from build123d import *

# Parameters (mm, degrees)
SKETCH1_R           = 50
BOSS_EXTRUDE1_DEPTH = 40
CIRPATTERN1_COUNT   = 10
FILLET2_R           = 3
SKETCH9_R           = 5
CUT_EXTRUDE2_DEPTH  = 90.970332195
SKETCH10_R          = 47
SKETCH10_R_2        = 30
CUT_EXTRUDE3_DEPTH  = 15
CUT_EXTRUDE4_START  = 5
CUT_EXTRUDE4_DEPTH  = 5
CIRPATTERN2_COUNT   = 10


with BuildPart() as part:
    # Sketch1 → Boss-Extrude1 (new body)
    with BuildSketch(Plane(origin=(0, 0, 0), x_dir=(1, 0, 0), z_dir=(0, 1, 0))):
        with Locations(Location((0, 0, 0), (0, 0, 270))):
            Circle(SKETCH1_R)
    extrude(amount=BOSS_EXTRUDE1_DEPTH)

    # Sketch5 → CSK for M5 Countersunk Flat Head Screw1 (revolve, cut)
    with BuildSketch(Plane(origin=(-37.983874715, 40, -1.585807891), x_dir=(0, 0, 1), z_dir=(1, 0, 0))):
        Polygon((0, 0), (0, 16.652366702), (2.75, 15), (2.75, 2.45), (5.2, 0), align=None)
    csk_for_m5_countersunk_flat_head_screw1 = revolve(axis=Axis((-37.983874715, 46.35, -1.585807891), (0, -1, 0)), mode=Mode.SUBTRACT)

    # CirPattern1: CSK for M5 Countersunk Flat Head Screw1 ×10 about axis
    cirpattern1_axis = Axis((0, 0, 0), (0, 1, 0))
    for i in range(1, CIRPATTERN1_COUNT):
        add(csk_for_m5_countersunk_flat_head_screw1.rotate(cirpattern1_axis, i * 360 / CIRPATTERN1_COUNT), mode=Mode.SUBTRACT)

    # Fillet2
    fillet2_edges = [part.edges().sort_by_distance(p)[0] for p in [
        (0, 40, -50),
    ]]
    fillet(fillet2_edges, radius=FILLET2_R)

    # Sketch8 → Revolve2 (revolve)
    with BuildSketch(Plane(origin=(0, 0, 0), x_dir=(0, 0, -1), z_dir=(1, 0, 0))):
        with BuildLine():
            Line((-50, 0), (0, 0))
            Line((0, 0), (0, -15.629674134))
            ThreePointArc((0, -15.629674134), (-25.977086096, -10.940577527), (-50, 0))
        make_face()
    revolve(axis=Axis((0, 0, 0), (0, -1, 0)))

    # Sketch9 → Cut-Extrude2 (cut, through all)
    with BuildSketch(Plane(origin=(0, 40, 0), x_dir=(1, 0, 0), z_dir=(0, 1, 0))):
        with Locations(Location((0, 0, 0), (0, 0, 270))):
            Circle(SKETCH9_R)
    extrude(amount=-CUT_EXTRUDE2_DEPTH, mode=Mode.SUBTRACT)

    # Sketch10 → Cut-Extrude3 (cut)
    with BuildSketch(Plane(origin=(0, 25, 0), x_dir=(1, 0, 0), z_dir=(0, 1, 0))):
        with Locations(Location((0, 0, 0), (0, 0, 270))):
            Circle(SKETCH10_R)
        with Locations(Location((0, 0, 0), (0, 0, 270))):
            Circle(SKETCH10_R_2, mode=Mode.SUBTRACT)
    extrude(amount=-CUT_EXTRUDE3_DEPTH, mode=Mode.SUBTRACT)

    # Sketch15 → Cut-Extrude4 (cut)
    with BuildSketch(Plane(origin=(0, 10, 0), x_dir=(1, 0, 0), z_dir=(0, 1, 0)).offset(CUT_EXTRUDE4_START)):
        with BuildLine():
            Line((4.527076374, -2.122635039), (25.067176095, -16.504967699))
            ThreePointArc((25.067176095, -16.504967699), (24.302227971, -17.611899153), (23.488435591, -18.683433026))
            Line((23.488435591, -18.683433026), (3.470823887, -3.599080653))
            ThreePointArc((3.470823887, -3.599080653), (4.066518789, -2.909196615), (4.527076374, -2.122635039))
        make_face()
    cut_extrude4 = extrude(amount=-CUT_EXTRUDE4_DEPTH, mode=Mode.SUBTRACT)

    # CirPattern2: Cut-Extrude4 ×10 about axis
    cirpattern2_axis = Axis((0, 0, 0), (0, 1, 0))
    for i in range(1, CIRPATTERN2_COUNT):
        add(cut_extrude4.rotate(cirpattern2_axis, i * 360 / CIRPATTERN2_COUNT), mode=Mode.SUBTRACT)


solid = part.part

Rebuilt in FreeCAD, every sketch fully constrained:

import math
import FreeCAD as App
import Part
import Sketcher
Q = App.Units.Quantity


def edges_at(feature, points):
    """Names of the edges that pass closest to the given points."""
    edges = feature.Shape.Edges
    near = lambda p: min(range(len(edges)), key=lambda i: edges[i].distToShape(Part.Vertex(*p))[0])
    return sorted({f"Edge{near(p) + 1}" for p in points})


def add_polygon(sketch, points):
    """Adds a closed chain of lines whose ends are joined by coincident constraints."""
    first, n = sketch.GeometryCount, len(points)
    for a, b in zip(points, points[1:] + points[:1]):
        sketch.addGeometry(Part.LineSegment(App.Vector(*a, 0), App.Vector(*b, 0)), False)
    for i in range(n):
        sketch.addConstraint(Sketcher.Constraint("Coincident", first + i, 2, first + (i + 1) % n, 1))

doc = App.newDocument("Part")
body = doc.addObject("PartDesign::Body", "Body")

# Sketch on XZ plane
sketch1 = body.newObject("Sketcher::SketchObject", "Sketch")
sketch1.AttachmentSupport = (doc.getObject("XZ_Plane"), [""])
sketch1.MapMode = "FlatFace"
sketch1.addGeometry(Part.Circle(App.Vector(0, 0, 0), App.Vector(0, 0, 1), 50), False)
sketch1.addConstraint(Sketcher.Constraint("Coincident", 0, 3, -1, 1))
sketch1.addConstraint(Sketcher.Constraint("Diameter", 0, 100.0))
pad1 = body.newObject("PartDesign::Pad", "Pad")
pad1.Profile = sketch1
pad1.Length = 40
pad1.Reversed = True

# Sketch on YZ plane
sketch2 = body.newObject("Sketcher::SketchObject", "Sketch001")
sketch2.AttachmentSupport = (doc.getObject("YZ_Plane"), [""])
sketch2.MapMode = "FlatFace"
sketch2.AttachmentOffset = App.Placement(App.Vector(0, 0, -37.983875), App.Rotation())
add_polygon(sketch2, [(23.347633, -1.585808), (40, -1.585808), (40, 3.614192), (37.55, 1.164192), (25, 1.164192)])  # lines 0-4
sketch2.addGeometry(Part.LineSegment(App.Vector(40, -1.585808, 0), App.Vector(23.347633, -1.585808, 0)), True)  # axis
sketch2.addConstraint(Sketcher.Constraint("Horizontal", 0))
sketch2.addConstraint(Sketcher.Constraint("Vertical", 1))
sketch2.addConstraint(Sketcher.Constraint("Horizontal", 3))
sketch2.addConstraint(Sketcher.Constraint("Horizontal", 5))
sketch2.addConstraint(Sketcher.Constraint("Coincident", 5, 1, 0, 2))
sketch2.addConstraint(Sketcher.Constraint("Equal", 0, 5))
sketch2.addConstraint(Sketcher.Constraint("Angle", 2, Q("-135 deg")))
sketch2.addConstraint(Sketcher.Constraint("Angle", 4, Q("-121 deg")))
sketch2.addConstraint(Sketcher.Constraint("DistanceY", 1, 1, 1, 2, 5.2))
sketch2.addConstraint(Sketcher.Constraint("DistanceX", -1, 1, 0, 2, 40.0))
sketch2.addConstraint(Sketcher.Constraint("DistanceX", -1, 1, 3, 2, 25.0))
sketch2.addConstraint(Sketcher.Constraint("DistanceX", 3, 2, 3, 1, 12.55))
sketch2.addConstraint(Sketcher.Constraint("DistanceY", 0, 2, -1, 1, 1.585808))
groove = body.newObject("PartDesign::Groove", "Groove")
groove.Profile = sketch2
groove.ReferenceAxis = (sketch2, ["Axis0"])
groove.Angle = 360
doc.recompute()

polarpattern = body.newObject("PartDesign::PolarPattern", "PolarPattern")
polarpattern.Originals = [groove]
polarpattern.Axis = (doc.getObject("Y_Axis"), [""])
polarpattern.Angle = 360
polarpattern.Occurrences = 10
body.Tip = polarpattern
doc.recompute()

fillet = body.newObject("PartDesign::Fillet", "Fillet")
fillet.Base = (polarpattern, edges_at(polarpattern, [(0, 40, -50)]))
fillet.Radius = 3

# Sketch on YZ plane
sketch3 = body.newObject("Sketcher::SketchObject", "Sketch002")
sketch3.AttachmentSupport = (doc.getObject("YZ_Plane"), [""])
sketch3.MapMode = "FlatFace"
sketch3.addGeometry(Part.LineSegment(App.Vector(0, 0, 0), App.Vector(0, 50, 0)), False)
sketch3.addGeometry(Part.ArcOfCircle(Part.Circle(App.Vector(90.598604, -5.7634, 0), App.Vector(0, 0, 1), 106.384509), math.radians(148.387721), math.radians(176.89447)), False)
sketch3.addGeometry(Part.LineSegment(App.Vector(-15.629674, 0, 0), App.Vector(0, 0, 0)), False)
sketch3.addConstraint(Sketcher.Constraint("Coincident", 0, 2, 1, 1))
sketch3.addConstraint(Sketcher.Constraint("Coincident", 1, 2, 2, 1))
sketch3.addConstraint(Sketcher.Constraint("Coincident", 2, 2, 0, 1))
sketch3.addConstraint(Sketcher.Constraint("Vertical", 0))
sketch3.addConstraint(Sketcher.Constraint("Horizontal", 2))
sketch3.addConstraint(Sketcher.Constraint("Coincident", 2, 2, -1, 1))
sketch3.addConstraint(Sketcher.Constraint("DistanceY", 0, 1, 0, 2, 50.0))
sketch3.addConstraint(Sketcher.Constraint("Radius", 1, 106.384509))
sketch3.addConstraint(Sketcher.Constraint("DistanceY", 1, 3, -1, 1, 5.7634))
revolution = body.newObject("PartDesign::Revolution", "Revolution")
revolution.Profile = sketch3
revolution.ReferenceAxis = (sketch3, ["H_Axis"])
revolution.Angle = 360

# Sketch on XZ plane
sketch4 = body.newObject("Sketcher::SketchObject", "Sketch003")
sketch4.AttachmentSupport = (doc.getObject("XZ_Plane"), [""])
sketch4.MapMode = "FlatFace"
sketch4.AttachmentOffset = App.Placement(App.Vector(0, 0, -40), App.Rotation())
sketch4.addGeometry(Part.Circle(App.Vector(0, 0, 0), App.Vector(0, 0, 1), 5), False)
sketch4.addConstraint(Sketcher.Constraint("Coincident", 0, 3, -1, 1))
sketch4.addConstraint(Sketcher.Constraint("Diameter", 0, 10.0))
pocket1 = body.newObject("PartDesign::Pocket", "Pocket")
pocket1.Profile = sketch4
pocket1.Type = "ThroughAll"
pocket1.Reversed = True

# Sketch on XZ plane
sketch5 = body.newObject("Sketcher::SketchObject", "Sketch004")
sketch5.AttachmentSupport = (doc.getObject("XZ_Plane"), [""])
sketch5.MapMode = "FlatFace"
sketch5.AttachmentOffset = App.Placement(App.Vector(0, 0, -25), App.Rotation())
sketch5.addGeometry(Part.Circle(App.Vector(0, 0, 0), App.Vector(0, 0, 1), 47), False)
sketch5.addGeometry(Part.Circle(App.Vector(0, 0, 0), App.Vector(0, 0, 1), 30), False)
sketch5.addConstraint(Sketcher.Constraint("Coincident", 0, 3, -1, 1))
sketch5.addConstraint(Sketcher.Constraint("Coincident", 1, 3, -1, 1))
sketch5.addConstraint(Sketcher.Constraint("Diameter", 0, 94.0))
sketch5.addConstraint(Sketcher.Constraint("Diameter", 1, 60.0))
pocket2 = body.newObject("PartDesign::Pocket", "Pocket001")
pocket2.Profile = sketch5
pocket2.Length = 15
pocket2.Reversed = True

# Sketch on XZ plane
sketch6 = body.newObject("Sketcher::SketchObject", "Sketch005")
sketch6.AttachmentSupport = (doc.getObject("XZ_Plane"), [""])
sketch6.MapMode = "FlatFace"
sketch6.AttachmentOffset = App.Placement(App.Vector(0, 0, -15), App.Rotation())
sketch6.addGeometry(Part.LineSegment(App.Vector(25.067176, 16.504968, 0), App.Vector(4.527076, 2.122635, 0)), False)
sketch6.addGeometry(Part.ArcOfCircle(Part.Circle(App.Vector(0, 0, 0), App.Vector(0, 0, 1), 5), math.radians(25.120728), math.radians(46.039302)), False)
sketch6.addGeometry(Part.LineSegment(App.Vector(3.470824, 3.599081, 0), App.Vector(23.488436, 18.683433, 0)), False)
sketch6.addGeometry(Part.ArcOfCircle(Part.Circle(App.Vector(0, 0, 0), App.Vector(0, 0, 1), 30.012952), math.radians(33.362085), math.radians(38.499832)), False)
sketch6.addConstraint(Sketcher.Constraint("Coincident", 0, 2, 1, 1))
sketch6.addConstraint(Sketcher.Constraint("Coincident", 1, 2, 2, 1))
sketch6.addConstraint(Sketcher.Constraint("Coincident", 2, 2, 3, 2))
sketch6.addConstraint(Sketcher.Constraint("Coincident", 3, 1, 0, 1))
sketch6.addConstraint(Sketcher.Constraint("Coincident", 1, 3, -1, 1))
sketch6.addConstraint(Sketcher.Constraint("Coincident", 3, 3, -1, 1))
sketch6.addConstraint(Sketcher.Constraint("Radius", 1, 5.0))
sketch6.addConstraint(Sketcher.Constraint("Angle", 0, Q("-145 deg")))
sketch6.addConstraint(Sketcher.Constraint("Angle", 2, Q("37 deg")))
sketch6.addConstraint(Sketcher.Constraint("Radius", 3, 30.012952))
sketch6.addConstraint(Sketcher.Constraint("DistanceX", 0, 2, 3, 1, 20.5401))
sketch6.addConstraint(Sketcher.Constraint("DistanceY", -1, 1, 1, 2, 3.599081))
pocket3 = body.newObject("PartDesign::Pocket", "Pocket002")
pocket3.Profile = sketch6
pocket3.Length = 5
pocket3.Reversed = True
doc.recompute()

polarpattern2 = body.newObject("PartDesign::PolarPattern", "PolarPattern001")
polarpattern2.Originals = [pocket3]
polarpattern2.Axis = (doc.getObject("Y_Axis"), [""])
polarpattern2.Angle = 360
polarpattern2.Occurrences = 10
body.Tip = polarpattern2

doc.recompute()
